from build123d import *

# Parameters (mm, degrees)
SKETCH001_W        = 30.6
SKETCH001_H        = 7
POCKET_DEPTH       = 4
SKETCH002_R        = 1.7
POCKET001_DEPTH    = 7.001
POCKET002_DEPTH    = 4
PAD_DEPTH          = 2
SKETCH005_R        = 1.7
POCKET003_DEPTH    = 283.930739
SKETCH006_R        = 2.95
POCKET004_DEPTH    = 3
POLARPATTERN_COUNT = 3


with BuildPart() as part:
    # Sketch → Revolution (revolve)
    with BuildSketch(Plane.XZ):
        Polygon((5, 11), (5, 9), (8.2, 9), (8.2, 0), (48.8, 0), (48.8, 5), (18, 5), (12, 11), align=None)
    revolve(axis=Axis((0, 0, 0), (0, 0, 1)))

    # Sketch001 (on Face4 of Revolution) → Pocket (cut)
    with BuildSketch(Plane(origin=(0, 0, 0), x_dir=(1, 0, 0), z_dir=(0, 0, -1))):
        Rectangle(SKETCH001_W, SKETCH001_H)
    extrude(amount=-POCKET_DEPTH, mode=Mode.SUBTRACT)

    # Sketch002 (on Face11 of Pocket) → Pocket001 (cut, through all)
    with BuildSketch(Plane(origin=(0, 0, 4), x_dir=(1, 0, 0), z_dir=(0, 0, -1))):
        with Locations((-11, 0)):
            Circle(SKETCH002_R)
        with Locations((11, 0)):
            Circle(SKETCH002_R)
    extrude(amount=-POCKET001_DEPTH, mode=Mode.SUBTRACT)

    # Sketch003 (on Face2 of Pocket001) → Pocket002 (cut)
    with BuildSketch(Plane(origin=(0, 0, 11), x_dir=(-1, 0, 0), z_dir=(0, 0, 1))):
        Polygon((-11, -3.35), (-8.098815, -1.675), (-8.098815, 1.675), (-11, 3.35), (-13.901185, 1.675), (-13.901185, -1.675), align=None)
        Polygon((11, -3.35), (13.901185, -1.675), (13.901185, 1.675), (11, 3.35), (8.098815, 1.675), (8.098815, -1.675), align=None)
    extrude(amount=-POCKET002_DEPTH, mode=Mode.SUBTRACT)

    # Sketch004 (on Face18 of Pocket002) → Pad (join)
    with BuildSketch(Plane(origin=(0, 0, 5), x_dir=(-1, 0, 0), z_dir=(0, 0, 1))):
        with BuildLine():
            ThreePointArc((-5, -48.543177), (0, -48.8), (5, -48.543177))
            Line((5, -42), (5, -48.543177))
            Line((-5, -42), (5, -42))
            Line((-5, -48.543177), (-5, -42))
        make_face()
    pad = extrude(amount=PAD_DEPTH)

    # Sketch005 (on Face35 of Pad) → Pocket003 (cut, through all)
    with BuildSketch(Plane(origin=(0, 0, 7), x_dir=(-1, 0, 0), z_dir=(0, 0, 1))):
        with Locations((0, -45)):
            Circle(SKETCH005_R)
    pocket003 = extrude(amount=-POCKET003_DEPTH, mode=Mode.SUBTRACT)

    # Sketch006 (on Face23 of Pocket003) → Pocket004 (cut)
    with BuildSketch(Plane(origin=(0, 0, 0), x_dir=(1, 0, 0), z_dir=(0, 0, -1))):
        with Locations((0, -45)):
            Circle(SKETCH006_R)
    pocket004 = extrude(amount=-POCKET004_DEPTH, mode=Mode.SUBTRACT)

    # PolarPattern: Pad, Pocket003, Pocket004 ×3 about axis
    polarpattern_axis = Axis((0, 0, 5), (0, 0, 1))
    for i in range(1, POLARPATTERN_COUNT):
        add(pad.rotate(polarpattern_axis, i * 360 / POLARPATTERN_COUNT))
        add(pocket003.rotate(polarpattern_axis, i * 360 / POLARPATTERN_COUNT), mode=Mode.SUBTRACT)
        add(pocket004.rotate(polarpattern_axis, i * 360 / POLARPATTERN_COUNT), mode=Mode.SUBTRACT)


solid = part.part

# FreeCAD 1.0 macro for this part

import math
import FreeCAD as App
import Part
import Sketcher

V = App.Vector
Q = App.Units.Quantity

doc = App.newDocument("Part")
body = doc.addObject("PartDesign::Body", "Body")

sketch1 = body.newObject("Sketcher::SketchObject", "Sketch")
sketch1.AttachmentSupport = (doc.getObject("XZ_Plane"), [""])
sketch1.MapMode = "FlatFace"
sketch1.addGeometry(Part.LineSegment(V(5, 11, 0), V(5, 9, 0)), False)
sketch1.addGeometry(Part.LineSegment(V(5, 9, 0), V(8.2, 9, 0)), False)
sketch1.addGeometry(Part.LineSegment(V(8.2, 9, 0), V(8.2, 0, 0)), False)
sketch1.addGeometry(Part.LineSegment(V(8.2, 0, 0), V(48.8, 0, 0)), False)
sketch1.addGeometry(Part.LineSegment(V(48.8, 0, 0), V(48.8, 5, 0)), False)
sketch1.addGeometry(Part.LineSegment(V(48.8, 5, 0), V(18, 5, 0)), False)
sketch1.addGeometry(Part.LineSegment(V(18, 5, 0), V(12, 11, 0)), False)
sketch1.addGeometry(Part.LineSegment(V(12, 11, 0), V(5, 11, 0)), False)
sketch1.addConstraint(Sketcher.Constraint("Coincident", 0, 2, 1, 1))
sketch1.addConstraint(Sketcher.Constraint("Coincident", 1, 2, 2, 1))
sketch1.addConstraint(Sketcher.Constraint("Coincident", 2, 2, 3, 1))
sketch1.addConstraint(Sketcher.Constraint("Coincident", 3, 2, 4, 1))
sketch1.addConstraint(Sketcher.Constraint("Coincident", 4, 2, 5, 1))
sketch1.addConstraint(Sketcher.Constraint("Coincident", 5, 2, 6, 1))
sketch1.addConstraint(Sketcher.Constraint("Coincident", 6, 2, 7, 1))
sketch1.addConstraint(Sketcher.Constraint("Coincident", 7, 2, 0, 1))
sketch1.addConstraint(Sketcher.Constraint("Vertical", 0))
sketch1.addConstraint(Sketcher.Constraint("Horizontal", 1))
sketch1.addConstraint(Sketcher.Constraint("Vertical", 2))
sketch1.addConstraint(Sketcher.Constraint("Horizontal", 3))
sketch1.addConstraint(Sketcher.Constraint("Vertical", 4))
sketch1.addConstraint(Sketcher.Constraint("Horizontal", 5))
sketch1.addConstraint(Sketcher.Constraint("Horizontal", 7))
sketch1.addConstraint(Sketcher.Constraint("PointOnObject", 2, 2, -1))
sketch1.addConstraint(Sketcher.Constraint("DistanceX", 7, 2, 7, 1, 7.0))
sketch1.addConstraint(Sketcher.Constraint("DistanceY", 0, 2, 0, 1, 2.0))
sketch1.addConstraint(Sketcher.Constraint("DistanceY", 2, 2, 2, 1, 9.0))
sketch1.addConstraint(Sketcher.Constraint("DistanceY", 4, 1, 4, 2, 5.0))
sketch1.addConstraint(Sketcher.Constraint("Angle", 6, Q("135 deg")))
sketch1.addConstraint(Sketcher.Constraint("DistanceX", 1, 1, 1, 2, 3.2))
sketch1.addConstraint(Sketcher.Constraint("DistanceX", 3, 1, 3, 2, 40.6))
sketch1.addConstraint(Sketcher.Constraint("DistanceX", -1, 1, 0, 2, 5.0))
revolution = body.newObject("PartDesign::Revolution", "Revolution")
revolution.Profile = sketch1
revolution.ReferenceAxis = (sketch1, ["V_Axis"])
revolution.Angle = 360

sketch2 = body.newObject("Sketcher::SketchObject", "Sketch001")
sketch2.AttachmentSupport = (doc.getObject("XY_Plane"), [""])
sketch2.MapMode = "FlatFace"
sketch2.addGeometry(Part.LineSegment(V(-15, -4, 0), V(-15, 4, 0)), False)
sketch2.addGeometry(Part.LineSegment(V(-15, 4, 0), V(15, 4, 0)), False)
sketch2.addGeometry(Part.LineSegment(V(15, 4, 0), V(15, -4, 0)), False)
sketch2.addGeometry(Part.LineSegment(V(15, -4, 0), V(-15, -4, 0)), False)
sketch2.addConstraint(Sketcher.Constraint("Coincident", 0, 2, 1, 1))
sketch2.addConstraint(Sketcher.Constraint("Coincident", 1, 2, 2, 1))
sketch2.addConstraint(Sketcher.Constraint("Coincident", 2, 2, 3, 1))
sketch2.addConstraint(Sketcher.Constraint("Coincident", 3, 2, 0, 1))
sketch2.addConstraint(Sketcher.Constraint("Vertical", 0))
sketch2.addConstraint(Sketcher.Constraint("Horizontal", 1))
sketch2.addConstraint(Sketcher.Constraint("Vertical", 2))
sketch2.addConstraint(Sketcher.Constraint("Horizontal", 3))
sketch2.addConstraint(Sketcher.Constraint("Symmetric", 0, 2, 2, 2, -1, 1))
sketch2.addConstraint(Sketcher.Constraint("DistanceY", 0, 1, 0, 2, 7.0))
sketch2.addConstraint(Sketcher.Constraint("DistanceX", 1, 1, 1, 2, 30.6))
pocket1 = body.newObject("PartDesign::Pocket", "Pocket")
pocket1.Profile = sketch2
pocket1.Length = 4
pocket1.Reversed = True

sketch3 = body.newObject("Sketcher::SketchObject", "Sketch002")
sketch3.AttachmentSupport = (doc.getObject("XY_Plane"), [""])
sketch3.MapMode = "FlatFace"
sketch3.AttachmentOffset = App.Placement(V(0, 0, 4), App.Rotation())
sketch3.addGeometry(Part.Circle(V(-11, 0, 0), V(0, 0, 1), 1.7), False)
sketch3.addGeometry(Part.Circle(V(11, 0, 0), V(0, 0, 1), 1.7), False)
sketch3.addConstraint(Sketcher.Constraint("Equal", 0, 1))
sketch3.addConstraint(Sketcher.Constraint("Symmetric", 0, 3, 1, 3, -1, 1))
sketch3.addConstraint(Sketcher.Constraint("PointOnObject", 0, 3, -1))
sketch3.addConstraint(Sketcher.Constraint("Diameter", 0, 3.4))
sketch3.addConstraint(Sketcher.Constraint("DistanceX", 0, 3, -1, 1, 11.0))
pocket2 = body.newObject("PartDesign::Pocket", "Pocket001")
pocket2.Profile = sketch3
pocket2.Type = "ThroughAll"
pocket2.Reversed = True

sketch4 = body.newObject("Sketcher::SketchObject", "Sketch003")
sketch4.AttachmentSupport = (doc.getObject("XY_Plane"), [""])
sketch4.MapMode = "FlatFace"
sketch4.AttachmentOffset = App.Placement(V(0, 0, 11), App.Rotation())
sketch4.addGeometry(Part.LineSegment(V(11, 3.4, 0), V(8.1, 1.7, 0)), False)
sketch4.addGeometry(Part.LineSegment(V(8.1, 1.7, 0), V(8.1, -1.7, 0)), False)
sketch4.addGeometry(Part.LineSegment(V(8.1, -1.7, 0), V(11, -3.4, 0)), False)
sketch4.addGeometry(Part.LineSegment(V(11, -3.4, 0), V(13.9, -1.7, 0)), False)
sketch4.addGeometry(Part.LineSegment(V(13.9, -1.7, 0), V(13.9, 1.7, 0)), False)
sketch4.addGeometry(Part.LineSegment(V(13.9, 1.7, 0), V(11, 3.4, 0)), False)
sketch4.addGeometry(Part.LineSegment(V(-11, 3.4, 0), V(-13.9, 1.7, 0)), False)
sketch4.addGeometry(Part.LineSegment(V(-13.9, 1.7, 0), V(-13.9, -1.7, 0)), False)
sketch4.addGeometry(Part.LineSegment(V(-13.9, -1.7, 0), V(-11, -3.4, 0)), False)
sketch4.addGeometry(Part.LineSegment(V(-11, -3.4, 0), V(-8.1, -1.7, 0)), False)
sketch4.addGeometry(Part.LineSegment(V(-8.1, -1.7, 0), V(-8.1, 1.7, 0)), False)
sketch4.addGeometry(Part.LineSegment(V(-8.1, 1.7, 0), V(-11, 3.4, 0)), False)
sketch4.addConstraint(Sketcher.Constraint("Coincident", 0, 2, 1, 1))
sketch4.addConstraint(Sketcher.Constraint("Coincident", 1, 2, 2, 1))
sketch4.addConstraint(Sketcher.Constraint("Coincident", 2, 2, 3, 1))
sketch4.addConstraint(Sketcher.Constraint("Coincident", 3, 2, 4, 1))
sketch4.addConstraint(Sketcher.Constraint("Coincident", 4, 2, 5, 1))
sketch4.addConstraint(Sketcher.Constraint("Coincident", 5, 2, 0, 1))
sketch4.addConstraint(Sketcher.Constraint("Coincident", 6, 2, 7, 1))
sketch4.addConstraint(Sketcher.Constraint("Coincident", 7, 2, 8, 1))
sketch4.addConstraint(Sketcher.Constraint("Coincident", 8, 2, 9, 1))
sketch4.addConstraint(Sketcher.Constraint("Coincident", 9, 2, 10, 1))
sketch4.addConstraint(Sketcher.Constraint("Coincident", 10, 2, 11, 1))
sketch4.addConstraint(Sketcher.Constraint("Coincident", 11, 2, 6, 1))
sketch4.addConstraint(Sketcher.Constraint("Vertical", 1))
sketch4.addConstraint(Sketcher.Constraint("Vertical", 4))
sketch4.addConstraint(Sketcher.Constraint("Vertical", 7))
sketch4.addConstraint(Sketcher.Constraint("Vertical", 10))
sketch4.addConstraint(Sketcher.Constraint("Symmetric", 3, 2, 6, 2, -1, 1))
sketch4.addConstraint(Sketcher.Constraint("Symmetric", 5, 2, 8, 2, -1, 1))
sketch4.addConstraint(Sketcher.Constraint("Symmetric", 0, 2, 9, 2, -1, 1))
sketch4.addConstraint(Sketcher.Constraint("Symmetric", 2, 2, 11, 2, -1, 1))
sketch4.addConstraint(Sketcher.Constraint("Symmetric", 2, 2, 8, 2, -2))
sketch4.addConstraint(Sketcher.Constraint("Parallel", 0, 3))
sketch4.addConstraint(Sketcher.Constraint("Parallel", 2, 5))
sketch4.addConstraint(Sketcher.Constraint("Parallel", 5, 8))
sketch4.addConstraint(Sketcher.Constraint("Parallel", 8, 11))
sketch4.addConstraint(Sketcher.Constraint("Horizontal", 1, 2, 3, 2))
sketch4.addConstraint(Sketcher.Constraint("Horizontal", 0, 2, 4, 2))
sketch4.addConstraint(Sketcher.Constraint("Angle", 0, Q("-149.999999 deg")))
sketch4.addConstraint(Sketcher.Constraint("DistanceX", -1, 1, 2, 2, 11.0))
sketch4.addConstraint(Sketcher.Constraint("DistanceY", 1, 2, 1, 1, 3.35))
sketch4.addConstraint(Sketcher.Constraint("DistanceY", 2, 2, 5, 2, 6.7))
pocket3 = body.newObject("PartDesign::Pocket", "Pocket002")
pocket3.Profile = sketch4
pocket3.Length = 4

sketch5 = body.newObject("Sketcher::SketchObject", "Sketch004")
sketch5.AttachmentSupport = (doc.getObject("XY_Plane"), [""])
sketch5.MapMode = "FlatFace"
sketch5.AttachmentOffset = App.Placement(V(0, 0, 5), App.Rotation())
sketch5.addGeometry(Part.ArcOfCircle(Part.Circle(V(0, 0, 0), V(0, 0, 1), 49), math.radians(84.12), math.radians(95.88)), False)
sketch5.addGeometry(Part.LineSegment(V(-5, 49, 0), V(-5, 42, 0)), False)
sketch5.addGeometry(Part.LineSegment(V(-5, 42, 0), V(5, 42, 0)), False)
sketch5.addGeometry(Part.LineSegment(V(5, 42, 0), V(5, 49, 0)), False)
sketch5.addConstraint(Sketcher.Constraint("Coincident", 0, 2, 1, 1))
sketch5.addConstraint(Sketcher.Constraint("Coincident", 1, 2, 2, 1))
sketch5.addConstraint(Sketcher.Constraint("Coincident", 2, 2, 3, 1))
sketch5.addConstraint(Sketcher.Constraint("Coincident", 3, 2, 0, 1))
sketch5.addConstraint(Sketcher.Constraint("Vertical", 1))
sketch5.addConstraint(Sketcher.Constraint("Horizontal", 2))
sketch5.addConstraint(Sketcher.Constraint("Vertical", 3))
sketch5.addConstraint(Sketcher.Constraint("Symmetric", 0, 2, 3, 2, -2))
sketch5.addConstraint(Sketcher.Constraint("DistanceX", 2, 1, 2, 2, 10.0))
sketch5.addConstraint(Sketcher.Constraint("DistanceY", -1, 1, 1, 2, 42.0))
sketch5.addConstraint(Sketcher.Constraint("Radius", 0, 48.800065))
sketch5.addConstraint(Sketcher.Constraint("DistanceY", 1, 2, 1, 1, 6.543177))
pad1 = body.newObject("PartDesign::Pad", "Pad")
pad1.Profile = sketch5
pad1.Length = 2

sketch6 = body.newObject("Sketcher::SketchObject", "Sketch005")
sketch6.AttachmentSupport = (doc.getObject("XY_Plane"), [""])
sketch6.MapMode = "FlatFace"
sketch6.AttachmentOffset = App.Placement(V(0, 0, 7), App.Rotation())
sketch6.addGeometry(Part.Circle(V(0, 45, 0), V(0, 0, 1), 1.7), False)
sketch6.addConstraint(Sketcher.Constraint("PointOnObject", 0, 3, -2))
sketch6.addConstraint(Sketcher.Constraint("Diameter", 0, 3.4))
sketch6.addConstraint(Sketcher.Constraint("DistanceY", -1, 1, 0, 3, 45.0))
pocket4 = body.newObject("PartDesign::Pocket", "Pocket003")
pocket4.Profile = sketch6
pocket4.Type = "ThroughAll"

sketch7 = body.newObject("Sketcher::SketchObject", "Sketch006")
sketch7.AttachmentSupport = (doc.getObject("XY_Plane"), [""])
sketch7.MapMode = "FlatFace"
sketch7.addGeometry(Part.Circle(V(0, 45, 0), V(0, 0, 1), 3), False)
sketch7.addConstraint(Sketcher.Constraint("PointOnObject", 0, 3, -2))
sketch7.addConstraint(Sketcher.Constraint("Diameter", 0, 5.9))
sketch7.addConstraint(Sketcher.Constraint("DistanceY", -1, 1, 0, 3, 45.0))
pocket5 = body.newObject("PartDesign::Pocket", "Pocket004")
pocket5.Profile = sketch7
pocket5.Length = 3
pocket5.Reversed = True
doc.recompute()

polarpattern = body.newObject("PartDesign::PolarPattern", "PolarPattern")
polarpattern.Originals = [pad1, pocket4, pocket5]
polarpattern.Axis = (doc.getObject("Z_Axis"), [""])
polarpattern.Angle = 360
polarpattern.Occurrences = 3
body.Tip = polarpattern

doc.recompute()
